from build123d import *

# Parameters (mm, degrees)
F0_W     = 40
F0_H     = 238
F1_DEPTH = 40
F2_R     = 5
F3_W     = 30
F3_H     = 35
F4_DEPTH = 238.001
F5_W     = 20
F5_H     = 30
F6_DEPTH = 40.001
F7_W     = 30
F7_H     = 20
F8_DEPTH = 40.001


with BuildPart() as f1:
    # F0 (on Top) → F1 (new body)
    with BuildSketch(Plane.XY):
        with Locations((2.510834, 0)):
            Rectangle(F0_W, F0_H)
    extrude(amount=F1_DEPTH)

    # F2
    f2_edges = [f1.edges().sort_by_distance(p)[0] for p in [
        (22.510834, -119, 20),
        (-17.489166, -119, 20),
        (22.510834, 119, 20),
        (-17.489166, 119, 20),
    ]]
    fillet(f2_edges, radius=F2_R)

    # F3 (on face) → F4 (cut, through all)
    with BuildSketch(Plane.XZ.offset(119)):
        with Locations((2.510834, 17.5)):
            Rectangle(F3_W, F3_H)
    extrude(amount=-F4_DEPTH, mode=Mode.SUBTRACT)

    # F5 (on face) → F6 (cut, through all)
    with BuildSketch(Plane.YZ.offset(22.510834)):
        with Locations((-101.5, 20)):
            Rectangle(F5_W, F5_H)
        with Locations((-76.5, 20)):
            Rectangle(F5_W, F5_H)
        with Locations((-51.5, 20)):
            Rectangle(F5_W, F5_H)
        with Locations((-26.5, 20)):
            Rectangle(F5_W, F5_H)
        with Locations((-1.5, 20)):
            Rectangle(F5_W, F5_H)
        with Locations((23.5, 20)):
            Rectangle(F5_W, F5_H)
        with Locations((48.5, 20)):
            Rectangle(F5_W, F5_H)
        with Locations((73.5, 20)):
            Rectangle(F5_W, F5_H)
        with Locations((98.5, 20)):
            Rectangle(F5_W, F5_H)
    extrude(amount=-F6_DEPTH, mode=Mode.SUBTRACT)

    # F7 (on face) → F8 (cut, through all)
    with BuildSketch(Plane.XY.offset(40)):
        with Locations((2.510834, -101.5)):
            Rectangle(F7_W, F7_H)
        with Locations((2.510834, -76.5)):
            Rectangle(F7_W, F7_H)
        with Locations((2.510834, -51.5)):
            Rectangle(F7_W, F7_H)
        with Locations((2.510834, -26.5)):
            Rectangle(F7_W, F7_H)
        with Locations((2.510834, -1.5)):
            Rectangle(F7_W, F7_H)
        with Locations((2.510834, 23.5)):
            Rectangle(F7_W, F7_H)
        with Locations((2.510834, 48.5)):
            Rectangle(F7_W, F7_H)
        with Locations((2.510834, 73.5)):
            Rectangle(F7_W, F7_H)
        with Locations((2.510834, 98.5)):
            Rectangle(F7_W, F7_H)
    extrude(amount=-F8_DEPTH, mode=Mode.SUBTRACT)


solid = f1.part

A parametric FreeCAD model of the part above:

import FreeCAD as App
import Part
import Sketcher

V = App.Vector


def edges_at(feature, points):
    """Names of the edges that pass closest to the given points."""
    edges = feature.Shape.Edges
    near = lambda p: min(range(len(edges)), key=lambda i: edges[i].distToShape(Part.Vertex(*p))[0])
    return sorted({f"Edge{near(p) + 1}" for p in points})


def add_polygon(sketch, points):
    """Adds a closed chain of lines whose ends are joined by coincident constraints."""
    first, n = sketch.GeometryCount, len(points)
    for a, b in zip(points, points[1:] + points[:1]):
        sketch.addGeometry(Part.LineSegment(App.Vector(*a, 0), App.Vector(*b, 0)), False)
    for i in range(n):
        sketch.addConstraint(Sketcher.Constraint("Coincident", first + i, 2, first + (i + 1) % n, 1))

doc = App.newDocument("Part")
body = doc.addObject("PartDesign::Body", "Body")

sketch1 = body.newObject("Sketcher::SketchObject", "Sketch")
sketch1.AttachmentSupport = (doc.getObject("XY_Plane"), [""])
sketch1.MapMode = "FlatFace"
add_polygon(sketch1, [(-17, 119), (-17, -119), (23, -119), (23, 119)])
sketch1.addConstraint([
    Sketcher.Constraint("Vertical", 0),
    Sketcher.Constraint("Horizontal", 1),
    Sketcher.Constraint("Vertical", 2),
    Sketcher.Constraint("Horizontal", 3),
    Sketcher.Constraint("DistanceX", 1, 1, 1, 2, 40.0),
    Sketcher.Constraint("DistanceY", 0, 2, 0, 1, 238.0),
    Sketcher.Constraint("DistanceY", 0, 2, -1, 1, 119.0),
    Sketcher.Constraint("DistanceX", 0, 2, -1, 1, 17.489166),
])
pad1 = body.newObject("PartDesign::Pad", "Pad")
pad1.Profile = sketch1
pad1.Length = 40
doc.recompute()

fillet = body.newObject("PartDesign::Fillet", "Fillet")
fillet.Base = (pad1, edges_at(pad1, [
    (22.511, -119, 20),
    (-17.489, -119, 20),
    (22.511, 119, 20),
    (-17.489, 119, 20),
]))
fillet.Radius = 5

sketch2 = body.newObject("Sketcher::SketchObject", "Sketch001")
sketch2.AttachmentSupport = (doc.getObject("XZ_Plane"), [""])
sketch2.MapMode = "FlatFace"
sketch2.AttachmentOffset = App.Placement(V(0, 0, 119), App.Rotation())
add_polygon(sketch2, [(-12, 35), (-12, 0), (18, 0), (18, 35)])
sketch2.addConstraint([
    Sketcher.Constraint("Vertical", 0),
    Sketcher.Constraint("Horizontal", 1),
    Sketcher.Constraint("Vertical", 2),
    Sketcher.Constraint("Horizontal", 3),
    Sketcher.Constraint("PointOnObject", 0, 2, -1),
    Sketcher.Constraint("DistanceX", 1, 1, 1, 2, 30.0),
    Sketcher.Constraint("DistanceY", 0, 2, 0, 1, 35.0),
    Sketcher.Constraint("DistanceX", 0, 2, -1, 1, 12.489166),
])
pocket1 = body.newObject("PartDesign::Pocket", "Pocket")
pocket1.Profile = sketch2
pocket1.Type = "ThroughAll"

sketch3 = body.newObject("Sketcher::SketchObject", "Sketch002")
sketch3.AttachmentSupport = (doc.getObject("YZ_Plane"), [""])
sketch3.MapMode = "FlatFace"
sketch3.AttachmentOffset = App.Placement(V(0, 0, 22.510834), App.Rotation())
add_polygon(sketch3, [(-112, 35), (-112, 5), (-92, 5), (-92, 35)])
add_polygon(sketch3, [(-86, 35), (-86, 5), (-66, 5), (-66, 35)])
add_polygon(sketch3, [(-62, 35), (-62, 5), (-42, 5), (-42, 35)])
add_polygon(sketch3, [(-36, 35), (-36, 5), (-16, 5), (-16, 35)])
add_polygon(sketch3, [(-12, 35), (-12, 5), (8, 5), (8, 35)])
add_polygon(sketch3, [(14, 35), (14, 5), (34, 5), (34, 35)])
add_polygon(sketch3, [(38, 35), (38, 5), (58, 5), (58, 35)])
add_polygon(sketch3, [(64, 35), (64, 5), (84, 5), (84, 35)])
add_polygon(sketch3, [(88, 35), (88, 5), (108, 5), (108, 35)])
sketch3.addConstraint([
    Sketcher.Constraint("Vertical", 0),
    Sketcher.Constraint("Horizontal", 1),
    Sketcher.Constraint("Vertical", 2),
    Sketcher.Constraint("Horizontal", 3),
    Sketcher.Constraint("Vertical", 4),
    Sketcher.Constraint("Horizontal", 5),
    Sketcher.Constraint("Vertical", 6),
    Sketcher.Constraint("Horizontal", 7),
    Sketcher.Constraint("Vertical", 8),
    Sketcher.Constraint("Horizontal", 9),
    Sketcher.Constraint("Vertical", 10),
    Sketcher.Constraint("Horizontal", 11),
    Sketcher.Constraint("Vertical", 12),
    Sketcher.Constraint("Horizontal", 13),
    Sketcher.Constraint("Vertical", 14),
    Sketcher.Constraint("Horizontal", 15),
    Sketcher.Constraint("Vertical", 16),
    Sketcher.Constraint("Horizontal", 17),
    Sketcher.Constraint("Vertical", 18),
    Sketcher.Constraint("Horizontal", 19),
    Sketcher.Constraint("Vertical", 20),
    Sketcher.Constraint("Horizontal", 21),
    Sketcher.Constraint("Vertical", 22),
    Sketcher.Constraint("Horizontal", 23),
    Sketcher.Constraint("Vertical", 24),
    Sketcher.Constraint("Horizontal", 25),
    Sketcher.Constraint("Vertical", 26),
    Sketcher.Constraint("Horizontal", 27),
    Sketcher.Constraint("Vertical", 28),
    Sketcher.Constraint("Horizontal", 29),
    Sketcher.Constraint("Vertical", 30),
    Sketcher.Constraint("Horizontal", 31),
    Sketcher.Constraint("Vertical", 32),
    Sketcher.Constraint("Horizontal", 33),
    Sketcher.Constraint("Vertical", 34),
    Sketcher.Constraint("Horizontal", 35),
    Sketcher.Constraint("Horizontal", 1, 2, 4, 2),
    Sketcher.Constraint("Horizontal", 3, 2, 6, 2),
    Sketcher.Constraint("Horizontal", 5, 2, 8, 2),
    Sketcher.Constraint("Horizontal", 7, 2, 10, 2),
    Sketcher.Constraint("Horizontal", 9, 2, 12, 2),
    Sketcher.Constraint("Horizontal", 11, 2, 14, 2),
    Sketcher.Constraint("Horizontal", 13, 2, 16, 2),
    Sketcher.Constraint("Horizontal", 15, 2, 18, 2),
    Sketcher.Constraint("Horizontal", 17, 2, 20, 2),
    Sketcher.Constraint("Horizontal", 19, 2, 22, 2),
    Sketcher.Constraint("Horizontal", 21, 2, 24, 2),
    Sketcher.Constraint("Horizontal", 23, 2, 26, 2),
    Sketcher.Constraint("Horizontal", 25, 2, 28, 2),
    Sketcher.Constraint("Horizontal", 27, 2, 30, 2),
    Sketcher.Constraint("Horizontal", 29, 2, 32, 2),
    Sketcher.Constraint("Horizontal", 31, 2, 34, 2),
    Sketcher.Constraint("Equal", 3, 5),
    Sketcher.Constraint("Equal", 7, 9),
    Sketcher.Constraint("Equal", 11, 13),
    Sketcher.Constraint("Equal", 15, 17),
    Sketcher.Constraint("Equal", 19, 21),
    Sketcher.Constraint("Equal", 23, 25),
    Sketcher.Constraint("Equal", 27, 29),
    Sketcher.Constraint("Equal", 31, 33),
    Sketcher.Constraint("DistanceX", 1, 1, 1, 2, 20.0),
    Sketcher.Constraint("DistanceY", 0, 2, 0, 1, 30.0),
    Sketcher.Constraint("DistanceY", -1, 1, 0, 2, 5.0),
    Sketcher.Constraint("DistanceX", 1, 2, 4, 2, 5.0),
    Sketcher.Constraint("DistanceX", 5, 2, 8, 2, 5.0),
    Sketcher.Constraint("DistanceX", 9, 2, 12, 2, 5.0),
    Sketcher.Constraint("DistanceX", 13, 2, 16, 2, 5.0),
    Sketcher.Constraint("DistanceX", 17, 2, 20, 2, 5.0),
    Sketcher.Constraint("DistanceX", 21, 2, 24, 2, 5.0),
    Sketcher.Constraint("DistanceX", 25, 2, 28, 2, 5.0),
    Sketcher.Constraint("DistanceX", 29, 2, 32, 2, 5.0),
    Sketcher.Constraint("DistanceX", 0, 2, -1, 1, 111.5),
])
pocket2 = body.newObject("PartDesign::Pocket", "Pocket001")
pocket2.Profile = sketch3
pocket2.Type = "ThroughAll"

sketch4 = body.newObject("Sketcher::SketchObject", "Sketch003")
sketch4.AttachmentSupport = (doc.getObject("XY_Plane"), [""])
sketch4.MapMode = "FlatFace"
sketch4.AttachmentOffset = App.Placement(V(0, 0, 40), App.Rotation())
add_polygon(sketch4, [(-12, -92), (-12, -112), (18, -112), (18, -92)])
add_polygon(sketch4, [(-12, -66), (-12, -86), (18, -86), (18, -66)])
add_polygon(sketch4, [(-12, -42), (-12, -62), (18, -62), (18, -42)])
add_polygon(sketch4, [(-12, -16), (-12, -36), (18, -36), (18, -16)])
add_polygon(sketch4, [(-12, 8), (-12, -12), (18, -12), (18, 8)])
add_polygon(sketch4, [(-12, 34), (-12, 14), (18, 14), (18, 34)])
add_polygon(sketch4, [(-12, 58), (-12, 38), (18, 38), (18, 58)])
add_polygon(sketch4, [(-12, 84), (-12, 64), (18, 64), (18, 84)])
add_polygon(sketch4, [(-12, 108), (-12, 88), (18, 88), (18, 108)])
sketch4.addConstraint([
    Sketcher.Constraint("Vertical", 0),
    Sketcher.Constraint("Horizontal", 1),
    Sketcher.Constraint("Vertical", 2),
    Sketcher.Constraint("Horizontal", 3),
    Sketcher.Constraint("Vertical", 4),
    Sketcher.Constraint("Horizontal", 5),
    Sketcher.Constraint("Vertical", 6),
    Sketcher.Constraint("Horizontal", 7),
    Sketcher.Constraint("Vertical", 8),
    Sketcher.Constraint("Horizontal", 9),
    Sketcher.Constraint("Vertical", 10),
    Sketcher.Constraint("Horizontal", 11),
    Sketcher.Constraint("Vertical", 12),
    Sketcher.Constraint("Horizontal", 13),
    Sketcher.Constraint("Vertical", 14),
    Sketcher.Constraint("Horizontal", 15),
    Sketcher.Constraint("Vertical", 16),
    Sketcher.Constraint("Horizontal", 17),
    Sketcher.Constraint("Vertical", 18),
    Sketcher.Constraint("Horizontal", 19),
    Sketcher.Constraint("Vertical", 20),
    Sketcher.Constraint("Horizontal", 21),
    Sketcher.Constraint("Vertical", 22),
    Sketcher.Constraint("Horizontal", 23),
    Sketcher.Constraint("Vertical", 24),
    Sketcher.Constraint("Horizontal", 25),
    Sketcher.Constraint("Vertical", 26),
    Sketcher.Constraint("Horizontal", 27),
    Sketcher.Constraint("Vertical", 28),
    Sketcher.Constraint("Horizontal", 29),
    Sketcher.Constraint("Vertical", 30),
    Sketcher.Constraint("Horizontal", 31),
    Sketcher.Constraint("Vertical", 32),
    Sketcher.Constraint("Horizontal", 33),
    Sketcher.Constraint("Vertical", 34),
    Sketcher.Constraint("Horizontal", 35),
    Sketcher.Constraint("Vertical", 3, 2, 4, 2),
    Sketcher.Constraint("Vertical", 2, 2, 5, 2),
    Sketcher.Constraint("Vertical", 7, 2, 8, 2),
    Sketcher.Constraint("Vertical", 6, 2, 9, 2),
    Sketcher.Constraint("Vertical", 11, 2, 12, 2),
    Sketcher.Constraint("Vertical", 10, 2, 13, 2),
    Sketcher.Constraint("Vertical", 15, 2, 16, 2),
    Sketcher.Constraint("Vertical", 14, 2, 17, 2),
    Sketcher.Constraint("Vertical", 19, 2, 20, 2),
    Sketcher.Constraint("Vertical", 18, 2, 21, 2),
    Sketcher.Constraint("Vertical", 23, 2, 24, 2),
    Sketcher.Constraint("Vertical", 22, 2, 25, 2),
    Sketcher.Constraint("Vertical", 27, 2, 28, 2),
    Sketcher.Constraint("Vertical", 26, 2, 29, 2),
    Sketcher.Constraint("Vertical", 31, 2, 32, 2),
    Sketcher.Constraint("Vertical", 30, 2, 33, 2),
    Sketcher.Constraint("Equal", 2, 4),
    Sketcher.Constraint("Equal", 6, 8),
    Sketcher.Constraint("Equal", 10, 12),
    Sketcher.Constraint("Equal", 14, 16),
    Sketcher.Constraint("Equal", 18, 20),
    Sketcher.Constraint("Equal", 22, 24),
    Sketcher.Constraint("Equal", 26, 28),
    Sketcher.Constraint("Equal", 30, 32),
    Sketcher.Constraint("DistanceX", 1, 1, 1, 2, 30.0),
    Sketcher.Constraint("DistanceY", 0, 2, 0, 1, 20.0),
    Sketcher.Constraint("DistanceY", 3, 2, 4, 2, 5.0),
    Sketcher.Constraint("DistanceY", 7, 2, 8, 2, 5.0),
    Sketcher.Constraint("DistanceY", 11, 2, 12, 2, 5.0),
    Sketcher.Constraint("DistanceY", 15, 2, 16, 2, 5.0),
    Sketcher.Constraint("DistanceY", 19, 2, 20, 2, 5.0),
    Sketcher.Constraint("DistanceY", 23, 2, 24, 2, 5.0),
    Sketcher.Constraint("DistanceY", 27, 2, 28, 2, 5.0),
    Sketcher.Constraint("DistanceY", 31, 2, 32, 2, 5.0),
    Sketcher.Constraint("DistanceY", 0, 2, -1, 1, 111.5),
    Sketcher.Constraint("DistanceX", 0, 2, -1, 1, 12.489166),
])
pocket3 = body.newObject("PartDesign::Pocket", "Pocket002")
pocket3.Profile = sketch4
pocket3.Type = "ThroughAll"

doc.recompute()
